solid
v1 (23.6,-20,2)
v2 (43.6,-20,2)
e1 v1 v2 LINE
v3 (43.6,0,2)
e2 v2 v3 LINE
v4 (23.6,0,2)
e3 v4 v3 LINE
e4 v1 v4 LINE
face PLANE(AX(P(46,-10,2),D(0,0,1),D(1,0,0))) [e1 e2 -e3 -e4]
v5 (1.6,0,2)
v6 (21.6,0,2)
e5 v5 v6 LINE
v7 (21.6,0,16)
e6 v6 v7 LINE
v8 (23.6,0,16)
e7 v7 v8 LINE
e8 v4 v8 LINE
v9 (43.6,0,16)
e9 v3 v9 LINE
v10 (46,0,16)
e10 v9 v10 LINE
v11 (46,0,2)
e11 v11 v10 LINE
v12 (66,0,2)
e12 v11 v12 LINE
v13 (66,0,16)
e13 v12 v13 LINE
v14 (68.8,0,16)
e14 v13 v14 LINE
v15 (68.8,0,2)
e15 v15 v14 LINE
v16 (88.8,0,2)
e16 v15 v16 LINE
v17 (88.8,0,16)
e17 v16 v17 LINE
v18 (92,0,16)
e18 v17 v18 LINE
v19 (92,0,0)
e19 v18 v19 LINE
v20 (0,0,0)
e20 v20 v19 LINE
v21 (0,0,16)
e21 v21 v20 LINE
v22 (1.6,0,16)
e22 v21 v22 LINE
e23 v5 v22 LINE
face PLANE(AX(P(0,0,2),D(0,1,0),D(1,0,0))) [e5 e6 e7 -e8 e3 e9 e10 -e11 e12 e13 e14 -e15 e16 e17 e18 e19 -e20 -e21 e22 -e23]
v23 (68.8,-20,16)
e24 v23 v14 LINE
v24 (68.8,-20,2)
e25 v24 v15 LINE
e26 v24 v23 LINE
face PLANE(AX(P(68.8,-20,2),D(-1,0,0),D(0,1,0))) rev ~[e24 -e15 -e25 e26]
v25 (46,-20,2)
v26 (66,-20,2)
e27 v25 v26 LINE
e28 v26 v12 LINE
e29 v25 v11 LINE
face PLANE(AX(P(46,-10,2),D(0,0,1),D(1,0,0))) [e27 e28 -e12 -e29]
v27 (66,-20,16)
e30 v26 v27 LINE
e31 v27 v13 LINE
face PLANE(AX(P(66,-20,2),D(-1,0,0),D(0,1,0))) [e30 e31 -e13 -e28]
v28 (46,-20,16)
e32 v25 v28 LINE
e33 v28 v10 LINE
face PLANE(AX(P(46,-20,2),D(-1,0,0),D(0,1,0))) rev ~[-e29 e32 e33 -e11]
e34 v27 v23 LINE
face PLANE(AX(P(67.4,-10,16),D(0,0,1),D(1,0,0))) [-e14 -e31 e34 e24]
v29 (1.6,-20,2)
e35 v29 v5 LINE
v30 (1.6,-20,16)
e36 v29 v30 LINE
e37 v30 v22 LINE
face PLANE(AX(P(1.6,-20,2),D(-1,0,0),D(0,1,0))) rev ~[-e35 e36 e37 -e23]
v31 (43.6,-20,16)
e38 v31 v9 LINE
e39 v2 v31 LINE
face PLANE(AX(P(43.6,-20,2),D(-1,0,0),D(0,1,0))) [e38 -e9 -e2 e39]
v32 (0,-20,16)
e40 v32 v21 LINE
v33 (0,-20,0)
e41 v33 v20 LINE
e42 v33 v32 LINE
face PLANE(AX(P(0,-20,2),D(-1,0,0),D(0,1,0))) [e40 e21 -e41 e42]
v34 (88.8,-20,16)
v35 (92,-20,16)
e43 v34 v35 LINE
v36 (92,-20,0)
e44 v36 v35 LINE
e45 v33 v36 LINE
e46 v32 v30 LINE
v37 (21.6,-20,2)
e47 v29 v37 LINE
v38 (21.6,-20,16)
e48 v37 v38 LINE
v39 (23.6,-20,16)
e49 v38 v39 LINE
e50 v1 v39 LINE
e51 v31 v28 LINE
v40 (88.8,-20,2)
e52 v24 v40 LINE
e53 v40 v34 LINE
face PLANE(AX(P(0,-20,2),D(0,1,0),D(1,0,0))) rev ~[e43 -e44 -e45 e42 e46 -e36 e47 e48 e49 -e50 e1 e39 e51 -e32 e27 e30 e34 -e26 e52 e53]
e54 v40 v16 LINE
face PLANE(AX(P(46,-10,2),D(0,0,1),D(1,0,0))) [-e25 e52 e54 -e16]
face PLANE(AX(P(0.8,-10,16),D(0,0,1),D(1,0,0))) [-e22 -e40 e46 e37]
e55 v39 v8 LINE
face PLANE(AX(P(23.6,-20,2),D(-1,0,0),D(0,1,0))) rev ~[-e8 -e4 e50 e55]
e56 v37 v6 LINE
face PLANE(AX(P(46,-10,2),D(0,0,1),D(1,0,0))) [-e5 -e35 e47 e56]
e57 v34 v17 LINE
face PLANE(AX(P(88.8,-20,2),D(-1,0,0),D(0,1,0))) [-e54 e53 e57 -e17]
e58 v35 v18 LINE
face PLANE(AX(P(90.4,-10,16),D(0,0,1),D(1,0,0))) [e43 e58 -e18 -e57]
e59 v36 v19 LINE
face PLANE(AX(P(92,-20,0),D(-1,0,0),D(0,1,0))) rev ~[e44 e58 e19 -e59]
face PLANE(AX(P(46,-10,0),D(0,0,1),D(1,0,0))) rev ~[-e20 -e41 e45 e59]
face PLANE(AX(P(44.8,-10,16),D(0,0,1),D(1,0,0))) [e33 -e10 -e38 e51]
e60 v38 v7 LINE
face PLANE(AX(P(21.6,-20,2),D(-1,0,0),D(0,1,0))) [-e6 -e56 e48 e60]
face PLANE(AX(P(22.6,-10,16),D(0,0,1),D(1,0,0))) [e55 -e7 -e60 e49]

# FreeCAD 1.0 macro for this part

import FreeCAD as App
import Part
import Sketcher
Q = App.Units.Quantity

doc = App.newDocument("Part")
params = doc.addObject("Spreadsheet::Sheet", "Params")
for row, (alias, value) in enumerate([
    ("sketch1_width", "92 mm"),
    ("sketch1_height", "20 mm"),
    ("pad1_length", "2 mm"),
    ("sketch2_width", "2 mm"),
    ("sketch2_height", "20 mm"),
    ("sketch2_width2", "1.6 mm"),
    ("sketch2_width3", "2.4 mm"),
    ("sketch2_width4", "2.8 mm"),
    ("pad2_length", "14 mm"),
], start=1):
    params.set(f"A{row}", alias)
    params.set(f"B{row}", "=" + value)
    params.setAlias(f"B{row}", alias)

body = doc.addObject("PartDesign::Body", "Body")

sketch1 = body.newObject("Sketcher::SketchObject", "Sketch")
sketch1.AttachmentSupport = (doc.getObject("XY_Plane"), [""])
sketch1.MapMode = "FlatFace"
sketch1.addGeometry([
    Part.LineSegment(App.Vector(0, 0, 0), App.Vector(0, -20, 0)),
    Part.LineSegment(App.Vector(0, -20, 0), App.Vector(92, -20, 0)),
    Part.LineSegment(App.Vector(92, -20, 0), App.Vector(92, 0, 0)),
    Part.LineSegment(App.Vector(92, 0, 0), App.Vector(0, 0, 0)),
], False)
sketch1.addConstraint([
    Sketcher.Constraint("Coincident", 0, 2, 1, 1),
    Sketcher.Constraint("Coincident", 1, 2, 2, 1),
    Sketcher.Constraint("Coincident", 2, 2, 3, 1),
    Sketcher.Constraint("Coincident", 3, 2, 0, 1),
    Sketcher.Constraint("Vertical", 0),
    Sketcher.Constraint("Horizontal", 1),
    Sketcher.Constraint("Vertical", 2),
    Sketcher.Constraint("Horizontal", 3),
    Sketcher.Constraint("Coincident", 3, 2, -1, 1),
    Sketcher.Constraint("DistanceX", 1, 1, 1, 2, Q("92 mm")),
    Sketcher.Constraint("DistanceY", 0, 2, 0, 1, Q("20 mm")),
])
sketch1.setExpression("Constraints[9]", "Params.sketch1_width")
sketch1.setExpression("Constraints[10]", "Params.sketch1_height")
pad1 = body.newObject("PartDesign::Pad", "Pad")
pad1.Profile = sketch1
pad1.setExpression("Length", "Params.pad1_length")

sketch2 = body.newObject("Sketcher::SketchObject", "Sketch001")
sketch2.AttachmentSupport = (doc.getObject("XY_Plane"), [""])
sketch2.MapMode = "FlatFace"
sketch2.AttachmentOffset = App.Placement(App.Vector(0, 0, 2), App.Rotation())
sketch2.addGeometry([
    Part.LineSegment(App.Vector(0, 0, 0), App.Vector(0, -20, 0)),
    Part.LineSegment(App.Vector(0, -20, 0), App.Vector(1.6, -20, 0)),
    Part.LineSegment(App.Vector(1.6, -20, 0), App.Vector(1.6, 0, 0)),
    Part.LineSegment(App.Vector(1.6, 0, 0), App.Vector(0, 0, 0)),
    Part.LineSegment(App.Vector(21.6, 0, 0), App.Vector(21.6, -20, 0)),
    Part.LineSegment(App.Vector(21.6, -20, 0), App.Vector(23.6, -20, 0)),
    Part.LineSegment(App.Vector(23.6, -20, 0), App.Vector(23.6, 0, 0)),
    Part.LineSegment(App.Vector(23.6, 0, 0), App.Vector(21.6, 0, 0)),
    Part.LineSegment(App.Vector(43.6, 0, 0), App.Vector(43.6, -20, 0)),
    Part.LineSegment(App.Vector(43.6, -20, 0), App.Vector(46, -20, 0)),
    Part.LineSegment(App.Vector(46, -20, 0), App.Vector(46, 0, 0)),
    Part.LineSegment(App.Vector(46, 0, 0), App.Vector(43.6, 0, 0)),
    Part.LineSegment(App.Vector(66, 0, 0), App.Vector(66, -20, 0)),
    Part.LineSegment(App.Vector(66, -20, 0), App.Vector(68.8, -20, 0)),
    Part.LineSegment(App.Vector(68.8, -20, 0), App.Vector(68.8, 0, 0)),
    Part.LineSegment(App.Vector(68.8, 0, 0), App.Vector(66, 0, 0)),
    Part.LineSegment(App.Vector(88.8, 0, 0), App.Vector(88.8, -20, 0)),
    Part.LineSegment(App.Vector(88.8, -20, 0), App.Vector(92, -20, 0)),
    Part.LineSegment(App.Vector(92, -20, 0), App.Vector(92, 0, 0)),
    Part.LineSegment(App.Vector(92, 0, 0), App.Vector(88.8, 0, 0)),
], False)
sketch2.addConstraint([
    Sketcher.Constraint("Coincident", 0, 2, 1, 1),
    Sketcher.Constraint("Coincident", 1, 2, 2, 1),
    Sketcher.Constraint("Coincident", 2, 2, 3, 1),
    Sketcher.Constraint("Coincident", 3, 2, 0, 1),
    Sketcher.Constraint("Coincident", 4, 2, 5, 1),
    Sketcher.Constraint("Coincident", 5, 2, 6, 1),
    Sketcher.Constraint("Coincident", 6, 2, 7, 1),
    Sketcher.Constraint("Coincident", 7, 2, 4, 1),
    Sketcher.Constraint("Coincident", 8, 2, 9, 1),
    Sketcher.Constraint("Coincident", 9, 2, 10, 1),
    Sketcher.Constraint("Coincident", 10, 2, 11, 1),
    Sketcher.Constraint("Coincident", 11, 2, 8, 1),
    Sketcher.Constraint("Coincident", 12, 2, 13, 1),
    Sketcher.Constraint("Coincident", 13, 2, 14, 1),
    Sketcher.Constraint("Coincident", 14, 2, 15, 1),
    Sketcher.Constraint("Coincident", 15, 2, 12, 1),
    Sketcher.Constraint("Coincident", 16, 2, 17, 1),
    Sketcher.Constraint("Coincident", 17, 2, 18, 1),
    Sketcher.Constraint("Coincident", 18, 2, 19, 1),
    Sketcher.Constraint("Coincident", 19, 2, 16, 1),
    Sketcher.Constraint("Vertical", 0),
    Sketcher.Constraint("Horizontal", 1),
    Sketcher.Constraint("Vertical", 2),
    Sketcher.Constraint("Horizontal", 3),
    Sketcher.Constraint("Vertical", 4),
    Sketcher.Constraint("Horizontal", 5),
    Sketcher.Constraint("Vertical", 6),
    Sketcher.Constraint("Horizontal", 7),
    Sketcher.Constraint("Vertical", 8),
    Sketcher.Constraint("Horizontal", 9),
    Sketcher.Constraint("Vertical", 10),
    Sketcher.Constraint("Horizontal", 11),
    Sketcher.Constraint("Vertical", 12),
    Sketcher.Constraint("Horizontal", 13),
    Sketcher.Constraint("Vertical", 14),
    Sketcher.Constraint("Horizontal", 15),
    Sketcher.Constraint("Vertical", 16),
    Sketcher.Constraint("Horizontal", 17),
    Sketcher.Constraint("Vertical", 18),
    Sketcher.Constraint("Horizontal", 19),
    Sketcher.Constraint("Coincident", 3, 2, -1, 1),
    Sketcher.Constraint("PointOnObject", 6, 2, -1),
    Sketcher.Constraint("PointOnObject", 10, 2, -1),
    Sketcher.Constraint("PointOnObject", 14, 2, -1),
    Sketcher.Constraint("PointOnObject", 18, 2, -1),
    Sketcher.Constraint("Horizontal", 1, 2, 4, 2),
    Sketcher.Constraint("Horizontal", 5, 2, 8, 2),
    Sketcher.Constraint("Horizontal", 9, 2, 12, 2),
    Sketcher.Constraint("Horizontal", 13, 2, 16, 2),
    Sketcher.Constraint("DistanceX", 5, 1, 5, 2, Q("2 mm")),
    Sketcher.Constraint("DistanceY", 0, 2, 0, 1, Q("20 mm")),
    Sketcher.Constraint("DistanceX", 1, 1, 1, 2, Q("1.6 mm")),
    Sketcher.Constraint("DistanceX", 9, 1, 9, 2, Q("2.4 mm")),
    Sketcher.Constraint("DistanceX", 13, 1, 13, 2, Q("2.8 mm")),
    Sketcher.Constraint("DistanceX", 17, 1, 17, 2, Q("3.2 mm")),
    Sketcher.Constraint("DistanceX", -1, 1, 9, 2, Q("46 mm")),
    Sketcher.Constraint("DistanceX", -1, 1, 12, 2, Q("66 mm")),
    Sketcher.Constraint("DistanceX", -1, 1, 17, 2, Q("92 mm")),
    Sketcher.Constraint("DistanceX", 1, 2, 4, 2, Q("20 mm")),
])
sketch2.setExpression("Constraints[49]", "Params.sketch2_width")
sketch2.setExpression("Constraints[50]", "Params.sketch2_height")
sketch2.setExpression("Constraints[51]", "Params.sketch2_width2")
sketch2.setExpression("Constraints[52]", "Params.sketch2_width3")
sketch2.setExpression("Constraints[53]", "Params.sketch2_width4")
pad2 = body.newObject("PartDesign::Pad", "Pad001")
pad2.Profile = sketch2
pad2.setExpression("Length", "Params.pad2_length")

doc.recompute()
